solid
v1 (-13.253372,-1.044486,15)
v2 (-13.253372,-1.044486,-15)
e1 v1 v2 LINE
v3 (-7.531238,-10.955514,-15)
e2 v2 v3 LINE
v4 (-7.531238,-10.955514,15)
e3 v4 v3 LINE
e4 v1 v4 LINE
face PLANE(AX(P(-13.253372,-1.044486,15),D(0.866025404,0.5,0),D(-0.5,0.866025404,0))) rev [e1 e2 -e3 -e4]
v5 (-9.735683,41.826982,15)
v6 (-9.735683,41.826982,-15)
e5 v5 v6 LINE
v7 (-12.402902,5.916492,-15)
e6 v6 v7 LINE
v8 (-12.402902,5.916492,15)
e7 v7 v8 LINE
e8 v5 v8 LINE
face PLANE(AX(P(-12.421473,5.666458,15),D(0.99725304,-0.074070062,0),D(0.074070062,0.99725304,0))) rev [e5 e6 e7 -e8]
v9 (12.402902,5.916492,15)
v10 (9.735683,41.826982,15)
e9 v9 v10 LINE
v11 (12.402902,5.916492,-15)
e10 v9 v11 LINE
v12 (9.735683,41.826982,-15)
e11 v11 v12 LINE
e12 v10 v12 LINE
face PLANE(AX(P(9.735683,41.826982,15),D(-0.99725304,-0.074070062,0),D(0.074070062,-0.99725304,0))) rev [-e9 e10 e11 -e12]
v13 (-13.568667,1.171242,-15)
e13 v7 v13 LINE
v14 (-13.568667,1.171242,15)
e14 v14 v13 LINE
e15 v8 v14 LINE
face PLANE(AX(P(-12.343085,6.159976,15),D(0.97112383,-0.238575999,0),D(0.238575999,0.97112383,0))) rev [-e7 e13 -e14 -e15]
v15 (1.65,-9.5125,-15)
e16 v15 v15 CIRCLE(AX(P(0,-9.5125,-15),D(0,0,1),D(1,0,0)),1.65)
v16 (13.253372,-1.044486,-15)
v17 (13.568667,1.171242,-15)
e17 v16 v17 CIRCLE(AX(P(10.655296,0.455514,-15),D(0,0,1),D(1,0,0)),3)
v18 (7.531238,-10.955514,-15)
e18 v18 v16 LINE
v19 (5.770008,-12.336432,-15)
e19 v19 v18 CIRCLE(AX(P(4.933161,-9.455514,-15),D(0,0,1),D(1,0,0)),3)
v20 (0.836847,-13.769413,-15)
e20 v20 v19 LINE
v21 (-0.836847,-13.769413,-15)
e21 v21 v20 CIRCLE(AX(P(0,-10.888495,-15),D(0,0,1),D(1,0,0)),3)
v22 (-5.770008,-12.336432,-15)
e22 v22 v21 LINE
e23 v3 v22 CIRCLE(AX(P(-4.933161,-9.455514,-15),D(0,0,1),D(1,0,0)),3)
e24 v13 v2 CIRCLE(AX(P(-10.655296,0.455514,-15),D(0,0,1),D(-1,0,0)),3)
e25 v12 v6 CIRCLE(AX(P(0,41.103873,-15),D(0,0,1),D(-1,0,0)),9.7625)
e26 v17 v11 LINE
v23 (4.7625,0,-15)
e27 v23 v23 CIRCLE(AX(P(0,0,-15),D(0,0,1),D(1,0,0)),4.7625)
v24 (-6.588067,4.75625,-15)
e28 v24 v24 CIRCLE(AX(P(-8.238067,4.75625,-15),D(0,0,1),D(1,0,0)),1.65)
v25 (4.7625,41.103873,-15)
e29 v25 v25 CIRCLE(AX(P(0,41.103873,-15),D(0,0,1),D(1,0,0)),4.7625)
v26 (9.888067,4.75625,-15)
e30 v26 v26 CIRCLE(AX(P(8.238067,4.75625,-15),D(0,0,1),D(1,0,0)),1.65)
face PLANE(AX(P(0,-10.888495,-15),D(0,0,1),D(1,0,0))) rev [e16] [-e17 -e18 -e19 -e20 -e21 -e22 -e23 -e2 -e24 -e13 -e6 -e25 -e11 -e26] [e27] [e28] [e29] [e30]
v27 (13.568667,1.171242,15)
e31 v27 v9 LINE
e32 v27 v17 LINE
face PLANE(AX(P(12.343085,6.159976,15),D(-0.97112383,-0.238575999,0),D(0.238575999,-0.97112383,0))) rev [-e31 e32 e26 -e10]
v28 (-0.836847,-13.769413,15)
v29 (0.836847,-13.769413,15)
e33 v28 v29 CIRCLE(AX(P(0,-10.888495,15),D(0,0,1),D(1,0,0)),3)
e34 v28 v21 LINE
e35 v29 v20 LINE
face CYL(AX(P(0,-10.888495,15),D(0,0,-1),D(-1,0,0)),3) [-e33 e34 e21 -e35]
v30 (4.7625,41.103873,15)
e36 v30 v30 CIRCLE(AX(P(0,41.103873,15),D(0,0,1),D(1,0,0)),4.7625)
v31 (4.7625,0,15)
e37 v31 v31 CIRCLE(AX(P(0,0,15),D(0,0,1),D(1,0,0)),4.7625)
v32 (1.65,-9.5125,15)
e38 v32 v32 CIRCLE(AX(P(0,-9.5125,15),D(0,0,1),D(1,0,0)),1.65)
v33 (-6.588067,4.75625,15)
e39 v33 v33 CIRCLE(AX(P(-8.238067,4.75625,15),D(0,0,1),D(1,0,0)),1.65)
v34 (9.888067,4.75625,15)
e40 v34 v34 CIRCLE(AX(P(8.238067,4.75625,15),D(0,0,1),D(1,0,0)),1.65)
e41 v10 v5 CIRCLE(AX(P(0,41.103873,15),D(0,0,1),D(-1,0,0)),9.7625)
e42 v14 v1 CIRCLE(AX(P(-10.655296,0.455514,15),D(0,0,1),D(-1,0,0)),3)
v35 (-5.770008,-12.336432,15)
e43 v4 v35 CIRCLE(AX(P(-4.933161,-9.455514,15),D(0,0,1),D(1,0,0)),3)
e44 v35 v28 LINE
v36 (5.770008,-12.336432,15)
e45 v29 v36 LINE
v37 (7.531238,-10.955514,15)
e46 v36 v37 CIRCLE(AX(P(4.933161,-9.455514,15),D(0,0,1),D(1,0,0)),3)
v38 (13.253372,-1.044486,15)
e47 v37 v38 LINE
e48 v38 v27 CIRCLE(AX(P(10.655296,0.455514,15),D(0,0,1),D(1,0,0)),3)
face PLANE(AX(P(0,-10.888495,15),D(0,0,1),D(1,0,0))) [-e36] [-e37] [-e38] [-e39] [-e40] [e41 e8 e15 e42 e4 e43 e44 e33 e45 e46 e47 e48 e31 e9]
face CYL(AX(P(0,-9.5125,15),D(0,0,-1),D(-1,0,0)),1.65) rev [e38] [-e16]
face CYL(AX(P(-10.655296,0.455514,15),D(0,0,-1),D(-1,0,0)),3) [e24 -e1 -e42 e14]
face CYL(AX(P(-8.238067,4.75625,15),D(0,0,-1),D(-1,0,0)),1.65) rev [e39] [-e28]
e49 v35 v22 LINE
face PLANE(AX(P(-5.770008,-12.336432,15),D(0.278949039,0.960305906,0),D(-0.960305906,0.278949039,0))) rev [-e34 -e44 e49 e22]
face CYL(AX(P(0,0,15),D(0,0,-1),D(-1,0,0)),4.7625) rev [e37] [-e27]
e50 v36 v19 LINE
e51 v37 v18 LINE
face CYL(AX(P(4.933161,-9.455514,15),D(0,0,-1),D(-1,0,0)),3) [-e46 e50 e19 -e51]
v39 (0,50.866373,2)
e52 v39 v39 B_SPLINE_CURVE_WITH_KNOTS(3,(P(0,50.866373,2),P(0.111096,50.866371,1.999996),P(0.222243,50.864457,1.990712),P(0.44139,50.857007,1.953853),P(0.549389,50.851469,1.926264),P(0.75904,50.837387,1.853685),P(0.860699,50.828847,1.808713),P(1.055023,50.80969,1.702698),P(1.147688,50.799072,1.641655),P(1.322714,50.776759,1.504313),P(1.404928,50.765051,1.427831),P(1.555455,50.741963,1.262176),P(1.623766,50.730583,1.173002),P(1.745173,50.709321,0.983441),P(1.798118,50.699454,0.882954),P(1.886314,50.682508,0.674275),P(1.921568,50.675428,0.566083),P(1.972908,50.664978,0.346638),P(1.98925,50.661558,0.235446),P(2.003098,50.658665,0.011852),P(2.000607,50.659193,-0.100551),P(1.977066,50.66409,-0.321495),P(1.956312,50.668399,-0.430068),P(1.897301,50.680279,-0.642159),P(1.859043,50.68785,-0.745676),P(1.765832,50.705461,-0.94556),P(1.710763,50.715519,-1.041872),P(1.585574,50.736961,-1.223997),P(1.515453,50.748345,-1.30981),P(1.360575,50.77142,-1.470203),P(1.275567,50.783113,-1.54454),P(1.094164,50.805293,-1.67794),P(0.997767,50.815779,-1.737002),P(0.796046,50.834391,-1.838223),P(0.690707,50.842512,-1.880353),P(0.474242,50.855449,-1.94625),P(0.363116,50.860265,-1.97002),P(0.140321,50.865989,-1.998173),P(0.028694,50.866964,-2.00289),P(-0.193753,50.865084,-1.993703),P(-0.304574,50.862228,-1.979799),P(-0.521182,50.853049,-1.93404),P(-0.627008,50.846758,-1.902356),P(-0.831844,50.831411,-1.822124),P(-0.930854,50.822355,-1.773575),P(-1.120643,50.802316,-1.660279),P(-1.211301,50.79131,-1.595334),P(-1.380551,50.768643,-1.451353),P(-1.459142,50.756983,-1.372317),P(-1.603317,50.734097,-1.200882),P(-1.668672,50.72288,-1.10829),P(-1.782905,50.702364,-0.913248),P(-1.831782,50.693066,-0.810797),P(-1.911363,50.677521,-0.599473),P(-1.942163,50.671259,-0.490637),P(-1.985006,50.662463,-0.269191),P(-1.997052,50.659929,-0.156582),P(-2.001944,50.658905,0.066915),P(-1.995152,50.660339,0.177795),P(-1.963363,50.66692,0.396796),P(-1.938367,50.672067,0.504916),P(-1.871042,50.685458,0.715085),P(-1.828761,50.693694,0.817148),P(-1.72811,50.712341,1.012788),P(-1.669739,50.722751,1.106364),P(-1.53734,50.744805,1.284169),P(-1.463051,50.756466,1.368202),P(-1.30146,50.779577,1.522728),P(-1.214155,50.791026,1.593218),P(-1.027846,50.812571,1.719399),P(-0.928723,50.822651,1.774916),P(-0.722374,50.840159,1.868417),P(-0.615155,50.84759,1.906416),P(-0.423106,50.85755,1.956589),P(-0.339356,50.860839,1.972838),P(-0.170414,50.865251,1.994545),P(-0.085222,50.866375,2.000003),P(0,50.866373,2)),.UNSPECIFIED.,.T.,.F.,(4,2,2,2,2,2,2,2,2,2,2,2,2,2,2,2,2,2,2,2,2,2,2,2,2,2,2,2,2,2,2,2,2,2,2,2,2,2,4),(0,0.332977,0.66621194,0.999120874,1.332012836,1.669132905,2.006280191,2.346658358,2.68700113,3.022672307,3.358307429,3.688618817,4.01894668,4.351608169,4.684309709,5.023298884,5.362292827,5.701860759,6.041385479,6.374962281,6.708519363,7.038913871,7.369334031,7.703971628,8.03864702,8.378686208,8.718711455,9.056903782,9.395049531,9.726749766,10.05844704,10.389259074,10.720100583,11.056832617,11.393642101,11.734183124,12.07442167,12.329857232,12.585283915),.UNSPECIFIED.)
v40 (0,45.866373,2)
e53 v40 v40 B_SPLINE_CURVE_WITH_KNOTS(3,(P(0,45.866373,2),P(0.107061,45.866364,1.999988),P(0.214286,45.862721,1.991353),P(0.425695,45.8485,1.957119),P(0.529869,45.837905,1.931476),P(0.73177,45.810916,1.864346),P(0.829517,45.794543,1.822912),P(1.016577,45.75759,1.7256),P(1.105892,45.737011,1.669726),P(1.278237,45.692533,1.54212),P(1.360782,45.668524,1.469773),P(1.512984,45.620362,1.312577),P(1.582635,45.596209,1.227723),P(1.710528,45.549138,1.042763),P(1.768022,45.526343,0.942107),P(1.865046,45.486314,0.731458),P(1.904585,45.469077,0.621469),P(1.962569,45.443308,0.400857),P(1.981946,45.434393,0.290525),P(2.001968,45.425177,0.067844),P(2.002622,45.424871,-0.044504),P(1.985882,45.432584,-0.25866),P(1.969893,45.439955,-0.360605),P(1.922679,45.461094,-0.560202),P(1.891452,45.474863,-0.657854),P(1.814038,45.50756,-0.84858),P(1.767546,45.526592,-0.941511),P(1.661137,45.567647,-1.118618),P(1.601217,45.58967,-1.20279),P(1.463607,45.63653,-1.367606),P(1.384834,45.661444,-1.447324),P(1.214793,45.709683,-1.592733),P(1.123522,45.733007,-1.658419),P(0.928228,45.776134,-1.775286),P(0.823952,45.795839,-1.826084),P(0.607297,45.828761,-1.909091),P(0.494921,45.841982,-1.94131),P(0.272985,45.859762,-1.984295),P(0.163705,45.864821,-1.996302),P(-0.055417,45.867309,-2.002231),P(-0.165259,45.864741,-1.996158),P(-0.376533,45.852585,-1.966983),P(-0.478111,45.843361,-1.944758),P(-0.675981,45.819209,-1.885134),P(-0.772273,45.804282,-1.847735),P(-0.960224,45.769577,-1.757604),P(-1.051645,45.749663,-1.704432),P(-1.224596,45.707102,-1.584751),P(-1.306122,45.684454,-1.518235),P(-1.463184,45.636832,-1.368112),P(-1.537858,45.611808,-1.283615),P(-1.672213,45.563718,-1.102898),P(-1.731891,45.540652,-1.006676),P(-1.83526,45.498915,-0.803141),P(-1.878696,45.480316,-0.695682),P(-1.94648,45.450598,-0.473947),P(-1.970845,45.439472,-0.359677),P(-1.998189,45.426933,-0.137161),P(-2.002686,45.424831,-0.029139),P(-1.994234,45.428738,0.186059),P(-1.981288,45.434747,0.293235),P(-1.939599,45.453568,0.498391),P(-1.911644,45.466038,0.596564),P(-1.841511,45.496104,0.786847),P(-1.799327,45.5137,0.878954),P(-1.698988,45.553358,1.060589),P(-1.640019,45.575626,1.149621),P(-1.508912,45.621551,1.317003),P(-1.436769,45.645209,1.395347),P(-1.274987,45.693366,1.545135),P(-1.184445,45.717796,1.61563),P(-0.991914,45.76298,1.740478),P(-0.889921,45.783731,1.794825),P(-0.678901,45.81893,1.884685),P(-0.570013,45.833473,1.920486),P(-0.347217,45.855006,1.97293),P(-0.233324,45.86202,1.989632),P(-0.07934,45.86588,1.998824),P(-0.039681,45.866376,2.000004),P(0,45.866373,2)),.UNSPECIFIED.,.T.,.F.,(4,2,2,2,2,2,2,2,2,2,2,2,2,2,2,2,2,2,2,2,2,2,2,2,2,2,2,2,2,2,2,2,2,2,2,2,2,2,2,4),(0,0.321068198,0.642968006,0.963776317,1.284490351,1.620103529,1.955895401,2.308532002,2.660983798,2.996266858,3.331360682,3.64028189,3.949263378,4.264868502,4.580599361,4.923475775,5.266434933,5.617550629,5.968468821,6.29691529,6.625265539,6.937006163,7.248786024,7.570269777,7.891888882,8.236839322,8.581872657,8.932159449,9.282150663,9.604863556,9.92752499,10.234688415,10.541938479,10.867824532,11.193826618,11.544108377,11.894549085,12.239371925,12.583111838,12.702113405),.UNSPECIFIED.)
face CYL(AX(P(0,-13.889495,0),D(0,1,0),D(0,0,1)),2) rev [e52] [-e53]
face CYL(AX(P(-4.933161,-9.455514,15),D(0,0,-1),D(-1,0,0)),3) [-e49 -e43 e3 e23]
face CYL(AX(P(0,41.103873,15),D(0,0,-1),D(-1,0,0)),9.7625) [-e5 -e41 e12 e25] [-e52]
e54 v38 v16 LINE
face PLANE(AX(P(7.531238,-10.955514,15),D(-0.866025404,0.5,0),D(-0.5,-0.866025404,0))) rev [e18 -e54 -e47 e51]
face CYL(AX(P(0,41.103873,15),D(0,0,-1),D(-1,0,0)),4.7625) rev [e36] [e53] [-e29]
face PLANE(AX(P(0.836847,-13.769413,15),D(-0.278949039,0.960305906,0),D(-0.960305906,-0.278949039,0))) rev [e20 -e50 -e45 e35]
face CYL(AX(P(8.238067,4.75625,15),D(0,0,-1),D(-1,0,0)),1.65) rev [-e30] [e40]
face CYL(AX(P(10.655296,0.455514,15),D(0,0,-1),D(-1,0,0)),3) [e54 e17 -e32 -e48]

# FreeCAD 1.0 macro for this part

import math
import FreeCAD as App
import Part
import Sketcher
from FreeCAD import Vector
Q = App.Units.Quantity

doc = App.newDocument("Part")
body = doc.addObject("PartDesign::Body", "Body")

# Sketch on XY plane
sketch1 = doc.addObject("Sketcher::SketchObject", "Sketch")
body.addObject(sketch1)
sketch1.AttachmentSupport = (doc.XY_Plane, [""])
sketch1.MapMode = "FlatFace"
sketch1.addGeometry([
    Part.LineSegment(Vector(-13.253372, -1.044486, 0), Vector(-7.531238, -10.955514, 0)),  # 0
    Part.ArcOfCircle(Part.Circle(Vector(-4.933161, -9.455514, 0), Vector(0, 0, 1), 3), math.radians(-150), math.radians(-106.19749)),  # 1
    Part.LineSegment(Vector(-5.770008, -12.336432, 0), Vector(-0.836847, -13.769413, 0)),  # 2
    Part.ArcOfCircle(Part.Circle(Vector(0, -10.888495, 0), Vector(0, 0, 1), 3), math.radians(-106.19749), math.radians(-73.80251)),  # 3
    Part.LineSegment(Vector(0.836847, -13.769413, 0), Vector(5.770008, -12.336432, 0)),  # 4
    Part.ArcOfCircle(Part.Circle(Vector(4.933161, -9.455514, 0), Vector(0, 0, 1), 3), math.radians(-73.80251), math.radians(-30)),  # 5
    Part.LineSegment(Vector(7.531238, -10.955514, 0), Vector(13.253372, -1.044486, 0)),  # 6
    Part.ArcOfCircle(Part.Circle(Vector(10.655296, 0.455514, 0), Vector(0, 0, 1), 3), math.radians(-30), math.radians(13.80251)),  # 7
    Part.LineSegment(Vector(13.568667, 1.171242, 0), Vector(12.343085, 6.159976, 0)),  # 8
    Part.ArcOfCircle(Part.Circle(Vector(9.429714, 5.444248, 0), Vector(0, 0, 1), 3), math.radians(13.80251), math.radians(46.19749)),  # 9
    Part.LineSegment(Vector(11.506238, 7.609437, 0), Vector(7.798659, 11.16519, 0)),  # 10
    Part.ArcOfCircle(Part.Circle(Vector(5.722135, 9, 0), Vector(0, 0, 1), 3), math.radians(46.19749), math.radians(90)),  # 11
    Part.LineSegment(Vector(5.722135, 12, 0), Vector(-5.722135, 12, 0)),  # 12
    Part.ArcOfCircle(Part.Circle(Vector(-5.722135, 9, 0), Vector(0, 0, 1), 3), math.radians(90), math.radians(133.80251)),  # 13
    Part.LineSegment(Vector(-7.798659, 11.16519, 0), Vector(-11.506238, 7.609437, 0)),  # 14
    Part.ArcOfCircle(Part.Circle(Vector(-9.429714, 5.444248, 0), Vector(0, 0, 1), 3), math.radians(133.80251), math.radians(166.19749)),  # 15
    Part.LineSegment(Vector(-12.343085, 6.159976, 0), Vector(-13.568667, 1.171242, 0)),  # 16
    Part.ArcOfCircle(Part.Circle(Vector(-10.655296, 0.455514, 0), Vector(0, 0, 1), 3), math.radians(166.19749), math.radians(210)),  # 17
    Part.Circle(Vector(0, -9.5125, 0), Vector(0, 0, 1), 1.65),  # 18
    Part.Circle(Vector(-8.238067, 4.75625, 0), Vector(0, 0, 1), 1.65),  # 19
    Part.Circle(Vector(0, 0, 0), Vector(0, 0, 1), 4.7625),  # 20
    Part.Circle(Vector(8.238067, 4.75625, 0), Vector(0, 0, 1), 1.65),  # 21
], False)
sketch1.addConstraint([
    Sketcher.Constraint("Tangent", 0, 2, 1, 1),
    Sketcher.Constraint("Tangent", 1, 2, 2, 1),
    Sketcher.Constraint("Tangent", 2, 2, 3, 1),
    Sketcher.Constraint("Tangent", 3, 2, 4, 1),
    Sketcher.Constraint("Tangent", 4, 2, 5, 1),
    Sketcher.Constraint("Tangent", 5, 2, 6, 1),
    Sketcher.Constraint("Tangent", 6, 2, 7, 1),
    Sketcher.Constraint("Tangent", 7, 2, 8, 1),
    Sketcher.Constraint("Tangent", 8, 2, 9, 1),
    Sketcher.Constraint("Tangent", 9, 2, 10, 1),
    Sketcher.Constraint("Tangent", 10, 2, 11, 1),
    Sketcher.Constraint("Tangent", 11, 2, 12, 1),
    Sketcher.Constraint("Tangent", 12, 2, 13, 1),
    Sketcher.Constraint("Tangent", 13, 2, 14, 1),
    Sketcher.Constraint("Tangent", 14, 2, 15, 1),
    Sketcher.Constraint("Tangent", 15, 2, 16, 1),
    Sketcher.Constraint("Tangent", 16, 2, 17, 1),
    Sketcher.Constraint("Tangent", 17, 2, 0, 1),
    Sketcher.Constraint("Horizontal", 12),
    Sketcher.Constraint("Coincident", 20, 3, -1, 1),
    Sketcher.Constraint("Equal", 1, 3),
    Sketcher.Constraint("Equal", 3, 5),
    Sketcher.Constraint("Equal", 5, 7),
    Sketcher.Constraint("Equal", 7, 9),
    Sketcher.Constraint("Equal", 9, 11),
    Sketcher.Constraint("Equal", 11, 13),
    Sketcher.Constraint("Equal", 13, 15),
    Sketcher.Constraint("Equal", 15, 17),
    Sketcher.Constraint("Equal", 18, 19),
    Sketcher.Constraint("Equal", 19, 21),
    Sketcher.Constraint("Symmetric", 1, 3, 5, 3, -2),
    Sketcher.Constraint("Symmetric", 9, 3, 15, 3, -2),
    Sketcher.Constraint("Symmetric", 7, 3, 17, 3, -2),
    Sketcher.Constraint("Symmetric", 19, 3, 21, 3, -2),
    Sketcher.Constraint("PointOnObject", 3, 3, -2),
    Sketcher.Constraint("PointOnObject", 18, 3, -2),
    Sketcher.Constraint("Horizontal", 10, 2, 13, 2),
    Sketcher.Constraint("Equal", 4, 8),
    Sketcher.Constraint("Equal", 8, 10),
    Sketcher.Constraint("Radius", 1, 3.0),
    Sketcher.Constraint("Diameter", 18, 3.3),
    Sketcher.Constraint("Angle", 0, Q("-60 deg")),
    Sketcher.Constraint("Diameter", 20, 9.525),
    Sketcher.Constraint("DistanceY", -1, 1, 11, 3, 9.0),
    Sketcher.Constraint("DistanceX", 12, 2, 12, 1, 11.444269),
    Sketcher.Constraint("DistanceY", 18, 3, -1, 1, 9.5125),
    Sketcher.Constraint("DistanceX", 19, 3, 11, 3, 13.960201),
    Sketcher.Constraint("DistanceX", 0, 2, 5, 3, 12.464399),
    Sketcher.Constraint("DistanceY", 2, 2, 1, 3, 4.313899),
    Sketcher.Constraint("DistanceX", 21, 3, 7, 2, 5.330601),
    Sketcher.Constraint("Distance", 0, 11.444269),
    Sketcher.Constraint("DistanceY", -1, 1, 19, 3, 4.75625),
])
pad1 = doc.addObject("PartDesign::Pad", "Pad")
body.addObject(pad1)
pad1.Profile = sketch1
pad1.Length = 30
pad1.Midplane = True

# Sketch on XY plane
sketch2 = doc.addObject("Sketcher::SketchObject", "Sketch001")
body.addObject(sketch2)
sketch2.AttachmentSupport = (doc.XY_Plane, [""])
sketch2.MapMode = "FlatFace"
sketch2.addGeometry([
    Part.LineSegment(Vector(-9.735683, 41.826982, 0), Vector(-12.421473, 5.666458, 0)),  # 0
    Part.LineSegment(Vector(-12.421473, 5.666458, 0), Vector(0, 12, 0)),  # 1
    Part.LineSegment(Vector(0, 12, 0), Vector(12.421473, 5.666458, 0)),  # 2
    Part.LineSegment(Vector(12.421473, 5.666458, 0), Vector(9.735683, 41.826982, 0)),  # 3
    Part.ArcOfCircle(Part.Circle(Vector(0, 41.103873, 0), Vector(0, 0, 1), 9.7625), math.radians(4.247792), math.radians(175.752208)),  # 4
    Part.Circle(Vector(0, 41.103873, 0), Vector(0, 0, 1), 4.7625),  # 5
], False)
sketch2.addConstraint([
    Sketcher.Constraint("Coincident", 0, 2, 1, 1),
    Sketcher.Constraint("Coincident", 1, 2, 2, 1),
    Sketcher.Constraint("Coincident", 2, 2, 3, 1),
    Sketcher.Constraint("Tangent", 3, 2, 4, 1),
    Sketcher.Constraint("Tangent", 4, 2, 0, 1),
    Sketcher.Constraint("Coincident", 5, 3, 4, 3),
    Sketcher.Constraint("Symmetric", 0, 2, 2, 2, -2),
    Sketcher.Constraint("PointOnObject", 4, 3, -2),
    Sketcher.Constraint("PointOnObject", 1, 2, -2),
    Sketcher.Constraint("Diameter", 5, 9.525),
    Sketcher.Constraint("DistanceY", -1, 1, 1, 2, 12.0),
    Sketcher.Constraint("Radius", 4, 9.7625),
    Sketcher.Constraint("Distance", 0, 36.260129),
    Sketcher.Constraint("Distance", 1, 13.942982),
    Sketcher.Constraint("DistanceY", -1, 1, 3, 2, 41.826982),
])
pad2 = doc.addObject("PartDesign::Pad", "Pad001")
body.addObject(pad2)
pad2.Profile = sketch2
pad2.Length = 30
pad2.Midplane = True

# Sketch on XZ plane
sketch3 = doc.addObject("Sketcher::SketchObject", "Sketch002")
body.addObject(sketch3)
sketch3.AttachmentSupport = (doc.XZ_Plane, [""])
sketch3.MapMode = "FlatFace"
sketch3.AttachmentOffset = App.Placement(Vector(0, 0, -50.866373), App.Rotation())
sketch3.addGeometry(Part.Circle(Vector(0, 0, 0), Vector(0, 0, 1), 2), False)
sketch3.addConstraint([
    Sketcher.Constraint("Coincident", 0, 3, -1, 1),
    Sketcher.Constraint("Diameter", 0, 4.0),
])
pocket1 = doc.addObject("PartDesign::Pocket", "Pocket")
body.addObject(pocket1)
pocket1.Profile = sketch3
pocket1.Type = "UpToFirst"
pocket1.Reversed = True

doc.recompute()
